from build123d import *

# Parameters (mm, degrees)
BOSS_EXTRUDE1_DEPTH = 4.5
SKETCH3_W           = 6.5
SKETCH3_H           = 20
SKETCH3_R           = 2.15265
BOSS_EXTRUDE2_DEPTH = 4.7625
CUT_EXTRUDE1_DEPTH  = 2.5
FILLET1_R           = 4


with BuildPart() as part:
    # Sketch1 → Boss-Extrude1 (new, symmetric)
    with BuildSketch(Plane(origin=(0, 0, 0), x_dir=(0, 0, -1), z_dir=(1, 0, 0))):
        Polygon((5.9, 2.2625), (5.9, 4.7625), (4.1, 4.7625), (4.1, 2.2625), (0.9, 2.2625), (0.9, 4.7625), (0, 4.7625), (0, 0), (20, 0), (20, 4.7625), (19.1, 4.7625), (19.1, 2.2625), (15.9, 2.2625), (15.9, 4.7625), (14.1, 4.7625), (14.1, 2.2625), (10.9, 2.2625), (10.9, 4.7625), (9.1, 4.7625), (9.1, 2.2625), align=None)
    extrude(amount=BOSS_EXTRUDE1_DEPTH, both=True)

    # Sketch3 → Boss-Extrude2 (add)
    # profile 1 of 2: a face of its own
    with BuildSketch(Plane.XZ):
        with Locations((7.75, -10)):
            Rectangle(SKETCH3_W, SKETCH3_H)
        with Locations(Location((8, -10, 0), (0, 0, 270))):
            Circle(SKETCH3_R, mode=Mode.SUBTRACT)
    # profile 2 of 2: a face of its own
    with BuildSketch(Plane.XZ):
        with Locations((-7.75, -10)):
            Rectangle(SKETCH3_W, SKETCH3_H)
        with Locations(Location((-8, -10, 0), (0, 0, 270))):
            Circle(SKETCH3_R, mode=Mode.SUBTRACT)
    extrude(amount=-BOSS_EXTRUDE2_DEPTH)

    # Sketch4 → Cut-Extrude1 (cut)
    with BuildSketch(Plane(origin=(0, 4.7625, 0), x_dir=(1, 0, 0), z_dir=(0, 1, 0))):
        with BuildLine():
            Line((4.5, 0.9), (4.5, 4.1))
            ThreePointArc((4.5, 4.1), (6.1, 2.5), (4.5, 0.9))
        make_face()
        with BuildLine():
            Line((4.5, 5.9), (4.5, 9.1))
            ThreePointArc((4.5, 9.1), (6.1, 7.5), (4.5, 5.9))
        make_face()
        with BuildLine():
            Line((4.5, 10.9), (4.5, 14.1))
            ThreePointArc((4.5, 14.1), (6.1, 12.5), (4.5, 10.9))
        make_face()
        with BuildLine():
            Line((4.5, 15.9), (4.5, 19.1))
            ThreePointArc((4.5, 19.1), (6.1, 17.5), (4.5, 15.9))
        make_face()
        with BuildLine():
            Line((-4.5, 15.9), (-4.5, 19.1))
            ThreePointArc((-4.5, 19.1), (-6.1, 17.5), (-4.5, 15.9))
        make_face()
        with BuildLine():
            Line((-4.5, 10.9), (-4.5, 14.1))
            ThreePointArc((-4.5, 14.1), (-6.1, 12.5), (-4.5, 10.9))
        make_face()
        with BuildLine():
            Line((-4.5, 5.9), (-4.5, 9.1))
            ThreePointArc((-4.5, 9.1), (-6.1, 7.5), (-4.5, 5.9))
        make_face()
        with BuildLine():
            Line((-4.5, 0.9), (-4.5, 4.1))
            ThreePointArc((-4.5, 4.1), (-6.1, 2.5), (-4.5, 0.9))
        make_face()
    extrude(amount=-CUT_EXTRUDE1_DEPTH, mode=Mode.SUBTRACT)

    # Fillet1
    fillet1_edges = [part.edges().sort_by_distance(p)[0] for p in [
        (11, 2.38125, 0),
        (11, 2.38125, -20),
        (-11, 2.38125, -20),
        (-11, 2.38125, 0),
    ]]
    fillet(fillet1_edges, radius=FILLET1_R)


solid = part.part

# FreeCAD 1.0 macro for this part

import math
import FreeCAD as App
import Part
import Sketcher


def edges_at(feature, points):
    """Names of the edges that pass closest to the given points."""
    edges = feature.Shape.Edges
    near = lambda p: min(range(len(edges)), key=lambda i: edges[i].distToShape(Part.Vertex(*p))[0])
    return sorted({f"Edge{near(p) + 1}" for p in points})

doc = App.newDocument("Part")
body = doc.addObject("PartDesign::Body", "Body")

# Sketch on YZ plane
sketch1 = body.newObject("Sketcher::SketchObject", "Sketch")
sketch1.AttachmentSupport = (doc.getObject("YZ_Plane"), [""])
sketch1.MapMode = "FlatFace"
sketch1.addGeometry(Part.LineSegment(App.Vector(2.3, -5.9, 0), App.Vector(4.8, -5.9, 0)), False)
sketch1.addGeometry(Part.LineSegment(App.Vector(4.8, -5.9, 0), App.Vector(4.8, -4.1, 0)), False)
sketch1.addGeometry(Part.LineSegment(App.Vector(4.8, -4.1, 0), App.Vector(2.3, -4.1, 0)), False)
sketch1.addGeometry(Part.LineSegment(App.Vector(2.3, -4.1, 0), App.Vector(2.3, -0.9, 0)), False)
sketch1.addGeometry(Part.LineSegment(App.Vector(2.3, -0.9, 0), App.Vector(4.8, -0.9, 0)), False)
sketch1.addGeometry(Part.LineSegment(App.Vector(4.8, -0.9, 0), App.Vector(4.8, 0, 0)), False)
sketch1.addGeometry(Part.LineSegment(App.Vector(4.8, 0, 0), App.Vector(0, 0, 0)), False)
sketch1.addGeometry(Part.LineSegment(App.Vector(0, 0, 0), App.Vector(0, -20, 0)), False)
sketch1.addGeometry(Part.LineSegment(App.Vector(0, -20, 0), App.Vector(4.8, -20, 0)), False)
sketch1.addGeometry(Part.LineSegment(App.Vector(4.8, -20, 0), App.Vector(4.8, -19.1, 0)), False)
sketch1.addGeometry(Part.LineSegment(App.Vector(4.8, -19.1, 0), App.Vector(2.3, -19.1, 0)), False)
sketch1.addGeometry(Part.LineSegment(App.Vector(2.3, -19.1, 0), App.Vector(2.3, -15.9, 0)), False)
sketch1.addGeometry(Part.LineSegment(App.Vector(2.3, -15.9, 0), App.Vector(4.8, -15.9, 0)), False)
sketch1.addGeometry(Part.LineSegment(App.Vector(4.8, -15.9, 0), App.Vector(4.8, -14.1, 0)), False)
sketch1.addGeometry(Part.LineSegment(App.Vector(4.8, -14.1, 0), App.Vector(2.3, -14.1, 0)), False)
sketch1.addGeometry(Part.LineSegment(App.Vector(2.3, -14.1, 0), App.Vector(2.3, -10.9, 0)), False)
sketch1.addGeometry(Part.LineSegment(App.Vector(2.3, -10.9, 0), App.Vector(4.8, -10.9, 0)), False)
sketch1.addGeometry(Part.LineSegment(App.Vector(4.8, -10.9, 0), App.Vector(4.8, -9.1, 0)), False)
sketch1.addGeometry(Part.LineSegment(App.Vector(4.8, -9.1, 0), App.Vector(2.3, -9.1, 0)), False)
sketch1.addGeometry(Part.LineSegment(App.Vector(2.3, -9.1, 0), App.Vector(2.3, -5.9, 0)), False)
sketch1.addConstraint(Sketcher.Constraint("Coincident", 0, 2, 1, 1))
sketch1.addConstraint(Sketcher.Constraint("Coincident", 1, 2, 2, 1))
sketch1.addConstraint(Sketcher.Constraint("Coincident", 2, 2, 3, 1))
sketch1.addConstraint(Sketcher.Constraint("Coincident", 3, 2, 4, 1))
sketch1.addConstraint(Sketcher.Constraint("Coincident", 4, 2, 5, 1))
sketch1.addConstraint(Sketcher.Constraint("Coincident", 5, 2, 6, 1))
sketch1.addConstraint(Sketcher.Constraint("Coincident", 6, 2, 7, 1))
sketch1.addConstraint(Sketcher.Constraint("Coincident", 7, 2, 8, 1))
sketch1.addConstraint(Sketcher.Constraint("Coincident", 8, 2, 9, 1))
sketch1.addConstraint(Sketcher.Constraint("Coincident", 9, 2, 10, 1))
sketch1.addConstraint(Sketcher.Constraint("Coincident", 10, 2, 11, 1))
sketch1.addConstraint(Sketcher.Constraint("Coincident", 11, 2, 12, 1))
sketch1.addConstraint(Sketcher.Constraint("Coincident", 12, 2, 13, 1))
sketch1.addConstraint(Sketcher.Constraint("Coincident", 13, 2, 14, 1))
sketch1.addConstraint(Sketcher.Constraint("Coincident", 14, 2, 15, 1))
sketch1.addConstraint(Sketcher.Constraint("Coincident", 15, 2, 16, 1))
sketch1.addConstraint(Sketcher.Constraint("Coincident", 16, 2, 17, 1))
sketch1.addConstraint(Sketcher.Constraint("Coincident", 17, 2, 18, 1))
sketch1.addConstraint(Sketcher.Constraint("Coincident", 18, 2, 19, 1))
sketch1.addConstraint(Sketcher.Constraint("Coincident", 19, 2, 0, 1))
sketch1.addConstraint(Sketcher.Constraint("Horizontal", 0))
sketch1.addConstraint(Sketcher.Constraint("Vertical", 1))
sketch1.addConstraint(Sketcher.Constraint("Horizontal", 2))
sketch1.addConstraint(Sketcher.Constraint("Vertical", 3))
sketch1.addConstraint(Sketcher.Constraint("Horizontal", 4))
sketch1.addConstraint(Sketcher.Constraint("Vertical", 5))
sketch1.addConstraint(Sketcher.Constraint("Horizontal", 6))
sketch1.addConstraint(Sketcher.Constraint("Vertical", 7))
sketch1.addConstraint(Sketcher.Constraint("Horizontal", 8))
sketch1.addConstraint(Sketcher.Constraint("Vertical", 9))
sketch1.addConstraint(Sketcher.Constraint("Horizontal", 10))
sketch1.addConstraint(Sketcher.Constraint("Vertical", 11))
sketch1.addConstraint(Sketcher.Constraint("Horizontal", 12))
sketch1.addConstraint(Sketcher.Constraint("Vertical", 13))
sketch1.addConstraint(Sketcher.Constraint("Horizontal", 14))
sketch1.addConstraint(Sketcher.Constraint("Vertical", 15))
sketch1.addConstraint(Sketcher.Constraint("Horizontal", 16))
sketch1.addConstraint(Sketcher.Constraint("Vertical", 17))
sketch1.addConstraint(Sketcher.Constraint("Horizontal", 18))
sketch1.addConstraint(Sketcher.Constraint("Vertical", 19))
sketch1.addConstraint(Sketcher.Constraint("Coincident", 6, 2, -1, 1))
sketch1.addConstraint(Sketcher.Constraint("Vertical", 1, 2, 4, 2))
sketch1.addConstraint(Sketcher.Constraint("Vertical", 5, 2, 8, 2))
sketch1.addConstraint(Sketcher.Constraint("Vertical", 3, 2, 10, 2))
sketch1.addConstraint(Sketcher.Constraint("Vertical", 9, 2, 12, 2))
sketch1.addConstraint(Sketcher.Constraint("Vertical", 11, 2, 14, 2))
sketch1.addConstraint(Sketcher.Constraint("Vertical", 13, 2, 16, 2))
sketch1.addConstraint(Sketcher.Constraint("Vertical", 15, 2, 18, 2))
sketch1.addConstraint(Sketcher.Constraint("Equal", 5, 9))
sketch1.addConstraint(Sketcher.Constraint("Equal", 3, 11))
sketch1.addConstraint(Sketcher.Constraint("Equal", 1, 13))
sketch1.addConstraint(Sketcher.Constraint("Equal", 11, 15))
sketch1.addConstraint(Sketcher.Constraint("Equal", 13, 17))
sketch1.addConstraint(Sketcher.Constraint("Equal", 15, 19))
sketch1.addConstraint(Sketcher.Constraint("DistanceY", 7, 2, 7, 1, 20.0))
sketch1.addConstraint(Sketcher.Constraint("DistanceX", 0, 1, 0, 2, 2.5))
sketch1.addConstraint(Sketcher.Constraint("DistanceY", 1, 1, 1, 2, 1.8))
sketch1.addConstraint(Sketcher.Constraint("DistanceY", 3, 1, 3, 2, 3.2))
sketch1.addConstraint(Sketcher.Constraint("DistanceX", 6, 2, 6, 1, 4.7625))
pad1 = body.newObject("PartDesign::Pad", "Pad")
pad1.Profile = sketch1
pad1.Length = 9
pad1.Midplane = True

# Sketch on XZ plane
sketch2 = body.newObject("Sketcher::SketchObject", "Sketch001")
sketch2.AttachmentSupport = (doc.getObject("XZ_Plane"), [""])
sketch2.MapMode = "FlatFace"
sketch2.addGeometry(Part.LineSegment(App.Vector(4.5, 0, 0), App.Vector(4.5, -20, 0)), False)
sketch2.addGeometry(Part.LineSegment(App.Vector(4.5, -20, 0), App.Vector(11, -20, 0)), False)
sketch2.addGeometry(Part.LineSegment(App.Vector(11, -20, 0), App.Vector(11, 0, 0)), False)
sketch2.addGeometry(Part.LineSegment(App.Vector(11, 0, 0), App.Vector(4.5, 0, 0)), False)
sketch2.addGeometry(Part.Circle(App.Vector(8, -10, 0), App.Vector(0, 0, 1), 2.2), False)
sketch2.addGeometry(Part.LineSegment(App.Vector(-11, 0, 0), App.Vector(-11, -20, 0)), False)
sketch2.addGeometry(Part.LineSegment(App.Vector(-11, -20, 0), App.Vector(-4.5, -20, 0)), False)
sketch2.addGeometry(Part.LineSegment(App.Vector(-4.5, -20, 0), App.Vector(-4.5, 0, 0)), False)
sketch2.addGeometry(Part.LineSegment(App.Vector(-4.5, 0, 0), App.Vector(-11, 0, 0)), False)
sketch2.addGeometry(Part.Circle(App.Vector(-8, -10, 0), App.Vector(0, 0, 1), 2.2), False)
sketch2.addConstraint(Sketcher.Constraint("Coincident", 0, 2, 1, 1))
sketch2.addConstraint(Sketcher.Constraint("Coincident", 1, 2, 2, 1))
sketch2.addConstraint(Sketcher.Constraint("Coincident", 2, 2, 3, 1))
sketch2.addConstraint(Sketcher.Constraint("Coincident", 3, 2, 0, 1))
sketch2.addConstraint(Sketcher.Constraint("Coincident", 5, 2, 6, 1))
sketch2.addConstraint(Sketcher.Constraint("Coincident", 6, 2, 7, 1))
sketch2.addConstraint(Sketcher.Constraint("Coincident", 7, 2, 8, 1))
sketch2.addConstraint(Sketcher.Constraint("Coincident", 8, 2, 5, 1))
sketch2.addConstraint(Sketcher.Constraint("Vertical", 0))
sketch2.addConstraint(Sketcher.Constraint("Horizontal", 1))
sketch2.addConstraint(Sketcher.Constraint("Vertical", 2))
sketch2.addConstraint(Sketcher.Constraint("Horizontal", 3))
sketch2.addConstraint(Sketcher.Constraint("Vertical", 5))
sketch2.addConstraint(Sketcher.Constraint("Horizontal", 6))
sketch2.addConstraint(Sketcher.Constraint("Vertical", 7))
sketch2.addConstraint(Sketcher.Constraint("Horizontal", 8))
sketch2.addConstraint(Sketcher.Constraint("Equal", 4, 9))
sketch2.addConstraint(Sketcher.Constraint("Symmetric", 3, 2, 7, 2, -1, 1))
sketch2.addConstraint(Sketcher.Constraint("Symmetric", 4, 3, 9, 3, -2))
sketch2.addConstraint(Sketcher.Constraint("Symmetric", 1, 2, 5, 2, -2))
sketch2.addConstraint(Sketcher.Constraint("PointOnObject", 2, 2, -1))
sketch2.addConstraint(Sketcher.Constraint("DistanceY", 0, 2, 0, 1, 20.0))
sketch2.addConstraint(Sketcher.Constraint("DistanceX", 1, 1, 1, 2, 6.5))
sketch2.addConstraint(Sketcher.Constraint("DistanceX", -1, 1, 4, 3, 8.0))
sketch2.addConstraint(Sketcher.Constraint("DistanceY", 4, 3, -1, 1, 10.0))
sketch2.addConstraint(Sketcher.Constraint("DistanceX", -1, 1, 1, 2, 11.0))
sketch2.addConstraint(Sketcher.Constraint("Diameter", 4, 4.3053))
pad2 = body.newObject("PartDesign::Pad", "Pad001")
pad2.Profile = sketch2
pad2.Length = 4.7625
pad2.Reversed = True

# Sketch on XZ plane
sketch3 = body.newObject("Sketcher::SketchObject", "Sketch002")
sketch3.AttachmentSupport = (doc.getObject("XZ_Plane"), [""])
sketch3.MapMode = "FlatFace"
sketch3.AttachmentOffset = App.Placement(App.Vector(0, 0, -4.7625), App.Rotation())
sketch3.addGeometry(Part.LineSegment(App.Vector(4.5, -4.1, 0), App.Vector(4.5, -0.9, 0)), False)
sketch3.addGeometry(Part.ArcOfCircle(Part.Circle(App.Vector(4.5, -2.5, 0), App.Vector(0, 0, 1), 1.6), math.radians(-90), math.radians(90)), False)
sketch3.addGeometry(Part.LineSegment(App.Vector(4.5, -9.1, 0), App.Vector(4.5, -5.9, 0)), False)
sketch3.addGeometry(Part.ArcOfCircle(Part.Circle(App.Vector(4.5, -7.5, 0), App.Vector(0, 0, 1), 1.6), math.radians(-90), math.radians(90)), False)
sketch3.addGeometry(Part.LineSegment(App.Vector(4.5, -14.1, 0), App.Vector(4.5, -10.9, 0)), False)
sketch3.addGeometry(Part.ArcOfCircle(Part.Circle(App.Vector(4.5, -12.5, 0), App.Vector(0, 0, 1), 1.6), math.radians(-90), math.radians(90)), False)
sketch3.addGeometry(Part.LineSegment(App.Vector(4.5, -19.1, 0), App.Vector(4.5, -15.9, 0)), False)
sketch3.addGeometry(Part.ArcOfCircle(Part.Circle(App.Vector(4.5, -17.5, 0), App.Vector(0, 0, 1), 1.6), math.radians(-90), math.radians(90)), False)
sketch3.addGeometry(Part.LineSegment(App.Vector(-4.5, -15.9, 0), App.Vector(-4.5, -19.1, 0)), False)
sketch3.addGeometry(Part.ArcOfCircle(Part.Circle(App.Vector(-4.5, -17.5, 0), App.Vector(0, 0, 1), 1.6), math.radians(90), math.radians(270)), False)
sketch3.addGeometry(Part.LineSegment(App.Vector(-4.5, -10.9, 0), App.Vector(-4.5, -14.1, 0)), False)
sketch3.addGeometry(Part.ArcOfCircle(Part.Circle(App.Vector(-4.5, -12.5, 0), App.Vector(0, 0, 1), 1.6), math.radians(90), math.radians(270)), False)
sketch3.addGeometry(Part.LineSegment(App.Vector(-4.5, -5.9, 0), App.Vector(-4.5, -9.1, 0)), False)
sketch3.addGeometry(Part.ArcOfCircle(Part.Circle(App.Vector(-4.5, -7.5, 0), App.Vector(0, 0, 1), 1.6), math.radians(90), math.radians(270)), False)
sketch3.addGeometry(Part.LineSegment(App.Vector(-4.5, -0.9, 0), App.Vector(-4.5, -4.1, 0)), False)
sketch3.addGeometry(Part.ArcOfCircle(Part.Circle(App.Vector(-4.5, -2.5, 0), App.Vector(0, 0, 1), 1.6), math.radians(90), math.radians(270)), False)
sketch3.addConstraint(Sketcher.Constraint("Coincident", 0, 1, 1, 1))
sketch3.addConstraint(Sketcher.Constraint("Coincident", 1, 2, 0, 2))
sketch3.addConstraint(Sketcher.Constraint("Coincident", 2, 1, 3, 1))
sketch3.addConstraint(Sketcher.Constraint("Coincident", 3, 2, 2, 2))
sketch3.addConstraint(Sketcher.Constraint("Coincident", 4, 1, 5, 1))
sketch3.addConstraint(Sketcher.Constraint("Coincident", 5, 2, 4, 2))
sketch3.addConstraint(Sketcher.Constraint("Coincident", 6, 1, 7, 1))
sketch3.addConstraint(Sketcher.Constraint("Coincident", 7, 2, 6, 2))
sketch3.addConstraint(Sketcher.Constraint("Coincident", 8, 1, 9, 1))
sketch3.addConstraint(Sketcher.Constraint("Coincident", 9, 2, 8, 2))
sketch3.addConstraint(Sketcher.Constraint("Coincident", 10, 1, 11, 1))
sketch3.addConstraint(Sketcher.Constraint("Coincident", 11, 2, 10, 2))
sketch3.addConstraint(Sketcher.Constraint("Coincident", 12, 1, 13, 1))
sketch3.addConstraint(Sketcher.Constraint("Coincident", 13, 2, 12, 2))
sketch3.addConstraint(Sketcher.Constraint("Coincident", 14, 1, 15, 1))
sketch3.addConstraint(Sketcher.Constraint("Coincident", 15, 2, 14, 2))
sketch3.addConstraint(Sketcher.Constraint("Vertical", 0))
sketch3.addConstraint(Sketcher.Constraint("Vertical", 2))
sketch3.addConstraint(Sketcher.Constraint("Vertical", 4))
sketch3.addConstraint(Sketcher.Constraint("Vertical", 6))
sketch3.addConstraint(Sketcher.Constraint("Vertical", 8))
sketch3.addConstraint(Sketcher.Constraint("Vertical", 10))
sketch3.addConstraint(Sketcher.Constraint("Vertical", 12))
sketch3.addConstraint(Sketcher.Constraint("Vertical", 14))
sketch3.addConstraint(Sketcher.Constraint("Equal", 1, 3))
sketch3.addConstraint(Sketcher.Constraint("Equal", 3, 5))
sketch3.addConstraint(Sketcher.Constraint("Equal", 5, 7))
sketch3.addConstraint(Sketcher.Constraint("Equal", 7, 9))
sketch3.addConstraint(Sketcher.Constraint("Equal", 9, 11))
sketch3.addConstraint(Sketcher.Constraint("Equal", 11, 13))
sketch3.addConstraint(Sketcher.Constraint("Equal", 13, 15))
sketch3.addConstraint(Sketcher.Constraint("Symmetric", 7, 3, 9, 3, -2))
sketch3.addConstraint(Sketcher.Constraint("Symmetric", 5, 3, 11, 3, -2))
sketch3.addConstraint(Sketcher.Constraint("Symmetric", 3, 3, 13, 3, -2))
sketch3.addConstraint(Sketcher.Constraint("Symmetric", 1, 3, 15, 3, -2))
sketch3.addConstraint(Sketcher.Constraint("Vertical", 1, 3, 3, 3))
sketch3.addConstraint(Sketcher.Constraint("Vertical", 3, 3, 5, 3))
sketch3.addConstraint(Sketcher.Constraint("Vertical", 5, 3, 7, 3))
sketch3.addConstraint(Sketcher.Constraint("Vertical", 7, 3, 0, 1))
sketch3.addConstraint(Sketcher.Constraint("Vertical", 1, 2, 2, 1))
sketch3.addConstraint(Sketcher.Constraint("Vertical", 3, 2, 4, 1))
sketch3.addConstraint(Sketcher.Constraint("Vertical", 5, 2, 6, 1))
sketch3.addConstraint(Sketcher.Constraint("Vertical", 15, 3, 8, 1))
sketch3.addConstraint(Sketcher.Constraint("Vertical", 9, 2, 10, 1))
sketch3.addConstraint(Sketcher.Constraint("Vertical", 11, 2, 12, 1))
sketch3.addConstraint(Sketcher.Constraint("Vertical", 13, 2, 14, 1))
sketch3.addConstraint(Sketcher.Constraint("Radius", 1, 1.6))
sketch3.addConstraint(Sketcher.Constraint("DistanceY", 3, 3, 1, 3, 5.0))
sketch3.addConstraint(Sketcher.Constraint("DistanceY", 5, 3, 3, 3, 5.0))
sketch3.addConstraint(Sketcher.Constraint("DistanceY", 7, 3, 5, 3, 5.0))
sketch3.addConstraint(Sketcher.Constraint("DistanceX", 9, 3, 7, 3, 9.0))
sketch3.addConstraint(Sketcher.Constraint("DistanceY", 1, 3, -1, 1, 2.5))
pocket1 = body.newObject("PartDesign::Pocket", "Pocket")
pocket1.Profile = sketch3
pocket1.Length = 2.5
pocket1.Reversed = True
doc.recompute()

fillet = body.newObject("PartDesign::Fillet", "Fillet")
fillet.Base = (pocket1, edges_at(pocket1, [
    (11, 2.381, 0),
    (11, 2.381, -20),
    (-11, 2.381, -20),
    (-11, 2.381, 0),
]))
fillet.Radius = 4

doc.recompute()
